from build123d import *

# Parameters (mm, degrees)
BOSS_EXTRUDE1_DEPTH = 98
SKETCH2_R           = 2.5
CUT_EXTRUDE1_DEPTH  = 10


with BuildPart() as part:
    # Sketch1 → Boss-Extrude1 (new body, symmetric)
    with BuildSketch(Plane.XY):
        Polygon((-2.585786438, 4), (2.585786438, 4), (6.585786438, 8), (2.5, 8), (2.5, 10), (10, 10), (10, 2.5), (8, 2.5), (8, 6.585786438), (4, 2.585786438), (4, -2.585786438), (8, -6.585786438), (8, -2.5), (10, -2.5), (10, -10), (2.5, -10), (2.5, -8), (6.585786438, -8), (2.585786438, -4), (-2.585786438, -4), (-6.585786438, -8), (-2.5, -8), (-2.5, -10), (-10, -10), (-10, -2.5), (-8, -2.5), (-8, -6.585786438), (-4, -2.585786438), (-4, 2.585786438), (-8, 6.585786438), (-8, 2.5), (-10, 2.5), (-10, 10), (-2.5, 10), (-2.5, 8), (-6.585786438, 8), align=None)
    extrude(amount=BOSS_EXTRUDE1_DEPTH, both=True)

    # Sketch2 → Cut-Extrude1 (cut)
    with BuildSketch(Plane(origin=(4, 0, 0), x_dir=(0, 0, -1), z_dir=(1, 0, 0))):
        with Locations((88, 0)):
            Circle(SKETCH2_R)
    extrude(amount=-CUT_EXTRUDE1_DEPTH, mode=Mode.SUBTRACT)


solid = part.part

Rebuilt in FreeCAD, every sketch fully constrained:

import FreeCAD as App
import Part
import Sketcher
Q = App.Units.Quantity

doc = App.newDocument("Part")
body = doc.addObject("PartDesign::Body", "Body")

# Sketch on XY plane
sketch1 = body.newObject("Sketcher::SketchObject", "Sketch")
sketch1.AttachmentSupport = (doc.getObject("XY_Plane"), [""])
sketch1.MapMode = "FlatFace"
sketch1.addGeometry(Part.LineSegment(App.Vector(2.585786, 4, 0), App.Vector(-2.585786, 4, 0)), False)
sketch1.addGeometry(Part.LineSegment(App.Vector(-2.585786, 4, 0), App.Vector(-6.585786, 8, 0)), False)
sketch1.addGeometry(Part.LineSegment(App.Vector(-6.585786, 8, 0), App.Vector(-2.5, 8, 0)), False)
sketch1.addGeometry(Part.LineSegment(App.Vector(-2.5, 8, 0), App.Vector(-2.5, 10, 0)), False)
sketch1.addGeometry(Part.LineSegment(App.Vector(-2.5, 10, 0), App.Vector(-10, 10, 0)), False)
sketch1.addGeometry(Part.LineSegment(App.Vector(-10, 10, 0), App.Vector(-10, 2.5, 0)), False)
sketch1.addGeometry(Part.LineSegment(App.Vector(-10, 2.5, 0), App.Vector(-8, 2.5, 0)), False)
sketch1.addGeometry(Part.LineSegment(App.Vector(-8, 2.5, 0), App.Vector(-8, 6.585786, 0)), False)
sketch1.addGeometry(Part.LineSegment(App.Vector(-8, 6.585786, 0), App.Vector(-4, 2.585786, 0)), False)
sketch1.addGeometry(Part.LineSegment(App.Vector(-4, 2.585786, 0), App.Vector(-4, -2.585786, 0)), False)
sketch1.addGeometry(Part.LineSegment(App.Vector(-4, -2.585786, 0), App.Vector(-8, -6.585786, 0)), False)
sketch1.addGeometry(Part.LineSegment(App.Vector(-8, -6.585786, 0), App.Vector(-8, -2.5, 0)), False)
sketch1.addGeometry(Part.LineSegment(App.Vector(-8, -2.5, 0), App.Vector(-10, -2.5, 0)), False)
sketch1.addGeometry(Part.LineSegment(App.Vector(-10, -2.5, 0), App.Vector(-10, -10, 0)), False)
sketch1.addGeometry(Part.LineSegment(App.Vector(-10, -10, 0), App.Vector(-2.5, -10, 0)), False)
sketch1.addGeometry(Part.LineSegment(App.Vector(-2.5, -10, 0), App.Vector(-2.5, -8, 0)), False)
sketch1.addGeometry(Part.LineSegment(App.Vector(-2.5, -8, 0), App.Vector(-6.585786, -8, 0)), False)
sketch1.addGeometry(Part.LineSegment(App.Vector(-6.585786, -8, 0), App.Vector(-2.585786, -4, 0)), False)
sketch1.addGeometry(Part.LineSegment(App.Vector(-2.585786, -4, 0), App.Vector(2.585786, -4, 0)), False)
sketch1.addGeometry(Part.LineSegment(App.Vector(2.585786, -4, 0), App.Vector(6.585786, -8, 0)), False)
sketch1.addGeometry(Part.LineSegment(App.Vector(6.585786, -8, 0), App.Vector(2.5, -8, 0)), False)
sketch1.addGeometry(Part.LineSegment(App.Vector(2.5, -8, 0), App.Vector(2.5, -10, 0)), False)
sketch1.addGeometry(Part.LineSegment(App.Vector(2.5, -10, 0), App.Vector(10, -10, 0)), False)
sketch1.addGeometry(Part.LineSegment(App.Vector(10, -10, 0), App.Vector(10, -2.5, 0)), False)
sketch1.addGeometry(Part.LineSegment(App.Vector(10, -2.5, 0), App.Vector(8, -2.5, 0)), False)
sketch1.addGeometry(Part.LineSegment(App.Vector(8, -2.5, 0), App.Vector(8, -6.585786, 0)), False)
sketch1.addGeometry(Part.LineSegment(App.Vector(8, -6.585786, 0), App.Vector(4, -2.585786, 0)), False)
sketch1.addGeometry(Part.LineSegment(App.Vector(4, -2.585786, 0), App.Vector(4, 2.585786, 0)), False)
sketch1.addGeometry(Part.LineSegment(App.Vector(4, 2.585786, 0), App.Vector(8, 6.585786, 0)), False)
sketch1.addGeometry(Part.LineSegment(App.Vector(8, 6.585786, 0), App.Vector(8, 2.5, 0)), False)
sketch1.addGeometry(Part.LineSegment(App.Vector(8, 2.5, 0), App.Vector(10, 2.5, 0)), False)
sketch1.addGeometry(Part.LineSegment(App.Vector(10, 2.5, 0), App.Vector(10, 10, 0)), False)
sketch1.addGeometry(Part.LineSegment(App.Vector(10, 10, 0), App.Vector(2.5, 10, 0)), False)
sketch1.addGeometry(Part.LineSegment(App.Vector(2.5, 10, 0), App.Vector(2.5, 8, 0)), False)
sketch1.addGeometry(Part.LineSegment(App.Vector(2.5, 8, 0), App.Vector(6.585786, 8, 0)), False)
sketch1.addGeometry(Part.LineSegment(App.Vector(6.585786, 8, 0), App.Vector(2.585786, 4, 0)), False)
sketch1.addConstraint(Sketcher.Constraint("Coincident", 0, 2, 1, 1))
sketch1.addConstraint(Sketcher.Constraint("Coincident", 1, 2, 2, 1))
sketch1.addConstraint(Sketcher.Constraint("Coincident", 2, 2, 3, 1))
sketch1.addConstraint(Sketcher.Constraint("Coincident", 3, 2, 4, 1))
sketch1.addConstraint(Sketcher.Constraint("Coincident", 4, 2, 5, 1))
sketch1.addConstraint(Sketcher.Constraint("Coincident", 5, 2, 6, 1))
sketch1.addConstraint(Sketcher.Constraint("Coincident", 6, 2, 7, 1))
sketch1.addConstraint(Sketcher.Constraint("Coincident", 7, 2, 8, 1))
sketch1.addConstraint(Sketcher.Constraint("Coincident", 8, 2, 9, 1))
sketch1.addConstraint(Sketcher.Constraint("Coincident", 9, 2, 10, 1))
sketch1.addConstraint(Sketcher.Constraint("Coincident", 10, 2, 11, 1))
sketch1.addConstraint(Sketcher.Constraint("Coincident", 11, 2, 12, 1))
sketch1.addConstraint(Sketcher.Constraint("Coincident", 12, 2, 13, 1))
sketch1.addConstraint(Sketcher.Constraint("Coincident", 13, 2, 14, 1))
sketch1.addConstraint(Sketcher.Constraint("Coincident", 14, 2, 15, 1))
sketch1.addConstraint(Sketcher.Constraint("Coincident", 15, 2, 16, 1))
sketch1.addConstraint(Sketcher.Constraint("Coincident", 16, 2, 17, 1))
sketch1.addConstraint(Sketcher.Constraint("Coincident", 17, 2, 18, 1))
sketch1.addConstraint(Sketcher.Constraint("Coincident", 18, 2, 19, 1))
sketch1.addConstraint(Sketcher.Constraint("Coincident", 19, 2, 20, 1))
sketch1.addConstraint(Sketcher.Constraint("Coincident", 20, 2, 21, 1))
sketch1.addConstraint(Sketcher.Constraint("Coincident", 21, 2, 22, 1))
sketch1.addConstraint(Sketcher.Constraint("Coincident", 22, 2, 23, 1))
sketch1.addConstraint(Sketcher.Constraint("Coincident", 23, 2, 24, 1))
sketch1.addConstraint(Sketcher.Constraint("Coincident", 24, 2, 25, 1))
sketch1.addConstraint(Sketcher.Constraint("Coincident", 25, 2, 26, 1))
sketch1.addConstraint(Sketcher.Constraint("Coincident", 26, 2, 27, 1))
sketch1.addConstraint(Sketcher.Constraint("Coincident", 27, 2, 28, 1))
sketch1.addConstraint(Sketcher.Constraint("Coincident", 28, 2, 29, 1))
sketch1.addConstraint(Sketcher.Constraint("Coincident", 29, 2, 30, 1))
sketch1.addConstraint(Sketcher.Constraint("Coincident", 30, 2, 31, 1))
sketch1.addConstraint(Sketcher.Constraint("Coincident", 31, 2, 32, 1))
sketch1.addConstraint(Sketcher.Constraint("Coincident", 32, 2, 33, 1))
sketch1.addConstraint(Sketcher.Constraint("Coincident", 33, 2, 34, 1))
sketch1.addConstraint(Sketcher.Constraint("Coincident", 34, 2, 35, 1))
sketch1.addConstraint(Sketcher.Constraint("Coincident", 35, 2, 0, 1))
sketch1.addConstraint(Sketcher.Constraint("Horizontal", 0))
sketch1.addConstraint(Sketcher.Constraint("Horizontal", 2))
sketch1.addConstraint(Sketcher.Constraint("Vertical", 3))
sketch1.addConstraint(Sketcher.Constraint("Horizontal", 4))
sketch1.addConstraint(Sketcher.Constraint("Vertical", 5))
sketch1.addConstraint(Sketcher.Constraint("Horizontal", 6))
sketch1.addConstraint(Sketcher.Constraint("Vertical", 7))
sketch1.addConstraint(Sketcher.Constraint("Vertical", 9))
sketch1.addConstraint(Sketcher.Constraint("Vertical", 11))
sketch1.addConstraint(Sketcher.Constraint("Horizontal", 12))
sketch1.addConstraint(Sketcher.Constraint("Vertical", 13))
sketch1.addConstraint(Sketcher.Constraint("Horizontal", 14))
sketch1.addConstraint(Sketcher.Constraint("Vertical", 15))
sketch1.addConstraint(Sketcher.Constraint("Horizontal", 16))
sketch1.addConstraint(Sketcher.Constraint("Horizontal", 18))
sketch1.addConstraint(Sketcher.Constraint("Horizontal", 20))
sketch1.addConstraint(Sketcher.Constraint("Vertical", 21))
sketch1.addConstraint(Sketcher.Constraint("Horizontal", 22))
sketch1.addConstraint(Sketcher.Constraint("Vertical", 23))
sketch1.addConstraint(Sketcher.Constraint("Horizontal", 24))
sketch1.addConstraint(Sketcher.Constraint("Vertical", 25))
sketch1.addConstraint(Sketcher.Constraint("Vertical", 27))
sketch1.addConstraint(Sketcher.Constraint("Vertical", 29))
sketch1.addConstraint(Sketcher.Constraint("Horizontal", 30))
sketch1.addConstraint(Sketcher.Constraint("Vertical", 31))
sketch1.addConstraint(Sketcher.Constraint("Horizontal", 32))
sketch1.addConstraint(Sketcher.Constraint("Vertical", 33))
sketch1.addConstraint(Sketcher.Constraint("Horizontal", 34))
sketch1.addConstraint(Sketcher.Constraint("Symmetric", 0, 2, 18, 2, -1, 1))
sketch1.addConstraint(Sketcher.Constraint("Symmetric", 1, 2, 19, 2, -1, 1))
sketch1.addConstraint(Sketcher.Constraint("Symmetric", 3, 2, 21, 2, -1, 1))
sketch1.addConstraint(Sketcher.Constraint("Symmetric", 5, 2, 23, 2, -1, 1))
sketch1.addConstraint(Sketcher.Constraint("Symmetric", 7, 2, 25, 2, -1, 1))
sketch1.addConstraint(Sketcher.Constraint("Symmetric", 8, 2, 26, 2, -1, 1))
sketch1.addConstraint(Sketcher.Constraint("Symmetric", 10, 2, 28, 2, -1, 1))
sketch1.addConstraint(Sketcher.Constraint("Symmetric", 12, 2, 30, 2, -1, 1))
sketch1.addConstraint(Sketcher.Constraint("Symmetric", 14, 2, 32, 2, -1, 1))
sketch1.addConstraint(Sketcher.Constraint("Symmetric", 16, 2, 34, 2, -1, 1))
sketch1.addConstraint(Sketcher.Constraint("Symmetric", 16, 2, 19, 2, -2))
sketch1.addConstraint(Sketcher.Constraint("Symmetric", 14, 2, 21, 2, -2))
sketch1.addConstraint(Sketcher.Constraint("Symmetric", 12, 2, 23, 2, -2))
sketch1.addConstraint(Sketcher.Constraint("Symmetric", 10, 2, 25, 2, -2))
sketch1.addConstraint(Sketcher.Constraint("Parallel", 1, 8))
sketch1.addConstraint(Sketcher.Constraint("Perpendicular", 8, 10))
sketch1.addConstraint(Sketcher.Constraint("Parallel", 10, 17))
sketch1.addConstraint(Sketcher.Constraint("Perpendicular", 26, 28))
sketch1.addConstraint(Sketcher.Constraint("Parallel", 28, 35))
sketch1.addConstraint(Sketcher.Constraint("Horizontal", 9, 2, 26, 2))
sketch1.addConstraint(Sketcher.Constraint("Equal", 30, 3))
sketch1.addConstraint(Sketcher.Constraint("Equal", 32, 5))
sketch1.addConstraint(Sketcher.Constraint("Equal", 34, 7))
sketch1.addConstraint(Sketcher.Constraint("Equal", 18, 9))
sketch1.addConstraint(Sketcher.Constraint("Equal", 1, 8))
sketch1.addConstraint(Sketcher.Constraint("DistanceX", 6, 1, 6, 2, Q("2 mm")))
sketch1.addConstraint(Sketcher.Constraint("DistanceX", 4, 2, 4, 1, Q("7.5 mm")))
sketch1.addConstraint(Sketcher.Constraint("DistanceY", -1, 1, 0, 2, Q("4 mm")))
sketch1.addConstraint(Sketcher.Constraint("DistanceY", -1, 1, 1, 2, Q("8 mm")))
sketch1.addConstraint(Sketcher.Constraint("DistanceX", 0, 2, 0, 1, Q("5.171573 mm")))
pad1 = body.newObject("PartDesign::Pad", "Pad")
pad1.Profile = sketch1
pad1.Length = 196
pad1.Midplane = True

# Sketch on YZ plane
sketch2 = body.newObject("Sketcher::SketchObject", "Sketch001")
sketch2.AttachmentSupport = (doc.getObject("YZ_Plane"), [""])
sketch2.MapMode = "FlatFace"
sketch2.AttachmentOffset = App.Placement(App.Vector(0, 0, 4), App.Rotation())
sketch2.addGeometry(Part.Circle(App.Vector(0, -88, 0), App.Vector(0, 0, 1), 2.5), False)
sketch2.addConstraint(Sketcher.Constraint("PointOnObject", 0, 3, -2))
sketch2.addConstraint(Sketcher.Constraint("Diameter", 0, Q("5 mm")))
sketch2.addConstraint(Sketcher.Constraint("DistanceY", 0, 3, -1, 1, Q("88 mm")))
pocket1 = body.newObject("PartDesign::Pocket", "Pocket")
pocket1.Profile = sketch2
pocket1.Length = 10

doc.recompute()
